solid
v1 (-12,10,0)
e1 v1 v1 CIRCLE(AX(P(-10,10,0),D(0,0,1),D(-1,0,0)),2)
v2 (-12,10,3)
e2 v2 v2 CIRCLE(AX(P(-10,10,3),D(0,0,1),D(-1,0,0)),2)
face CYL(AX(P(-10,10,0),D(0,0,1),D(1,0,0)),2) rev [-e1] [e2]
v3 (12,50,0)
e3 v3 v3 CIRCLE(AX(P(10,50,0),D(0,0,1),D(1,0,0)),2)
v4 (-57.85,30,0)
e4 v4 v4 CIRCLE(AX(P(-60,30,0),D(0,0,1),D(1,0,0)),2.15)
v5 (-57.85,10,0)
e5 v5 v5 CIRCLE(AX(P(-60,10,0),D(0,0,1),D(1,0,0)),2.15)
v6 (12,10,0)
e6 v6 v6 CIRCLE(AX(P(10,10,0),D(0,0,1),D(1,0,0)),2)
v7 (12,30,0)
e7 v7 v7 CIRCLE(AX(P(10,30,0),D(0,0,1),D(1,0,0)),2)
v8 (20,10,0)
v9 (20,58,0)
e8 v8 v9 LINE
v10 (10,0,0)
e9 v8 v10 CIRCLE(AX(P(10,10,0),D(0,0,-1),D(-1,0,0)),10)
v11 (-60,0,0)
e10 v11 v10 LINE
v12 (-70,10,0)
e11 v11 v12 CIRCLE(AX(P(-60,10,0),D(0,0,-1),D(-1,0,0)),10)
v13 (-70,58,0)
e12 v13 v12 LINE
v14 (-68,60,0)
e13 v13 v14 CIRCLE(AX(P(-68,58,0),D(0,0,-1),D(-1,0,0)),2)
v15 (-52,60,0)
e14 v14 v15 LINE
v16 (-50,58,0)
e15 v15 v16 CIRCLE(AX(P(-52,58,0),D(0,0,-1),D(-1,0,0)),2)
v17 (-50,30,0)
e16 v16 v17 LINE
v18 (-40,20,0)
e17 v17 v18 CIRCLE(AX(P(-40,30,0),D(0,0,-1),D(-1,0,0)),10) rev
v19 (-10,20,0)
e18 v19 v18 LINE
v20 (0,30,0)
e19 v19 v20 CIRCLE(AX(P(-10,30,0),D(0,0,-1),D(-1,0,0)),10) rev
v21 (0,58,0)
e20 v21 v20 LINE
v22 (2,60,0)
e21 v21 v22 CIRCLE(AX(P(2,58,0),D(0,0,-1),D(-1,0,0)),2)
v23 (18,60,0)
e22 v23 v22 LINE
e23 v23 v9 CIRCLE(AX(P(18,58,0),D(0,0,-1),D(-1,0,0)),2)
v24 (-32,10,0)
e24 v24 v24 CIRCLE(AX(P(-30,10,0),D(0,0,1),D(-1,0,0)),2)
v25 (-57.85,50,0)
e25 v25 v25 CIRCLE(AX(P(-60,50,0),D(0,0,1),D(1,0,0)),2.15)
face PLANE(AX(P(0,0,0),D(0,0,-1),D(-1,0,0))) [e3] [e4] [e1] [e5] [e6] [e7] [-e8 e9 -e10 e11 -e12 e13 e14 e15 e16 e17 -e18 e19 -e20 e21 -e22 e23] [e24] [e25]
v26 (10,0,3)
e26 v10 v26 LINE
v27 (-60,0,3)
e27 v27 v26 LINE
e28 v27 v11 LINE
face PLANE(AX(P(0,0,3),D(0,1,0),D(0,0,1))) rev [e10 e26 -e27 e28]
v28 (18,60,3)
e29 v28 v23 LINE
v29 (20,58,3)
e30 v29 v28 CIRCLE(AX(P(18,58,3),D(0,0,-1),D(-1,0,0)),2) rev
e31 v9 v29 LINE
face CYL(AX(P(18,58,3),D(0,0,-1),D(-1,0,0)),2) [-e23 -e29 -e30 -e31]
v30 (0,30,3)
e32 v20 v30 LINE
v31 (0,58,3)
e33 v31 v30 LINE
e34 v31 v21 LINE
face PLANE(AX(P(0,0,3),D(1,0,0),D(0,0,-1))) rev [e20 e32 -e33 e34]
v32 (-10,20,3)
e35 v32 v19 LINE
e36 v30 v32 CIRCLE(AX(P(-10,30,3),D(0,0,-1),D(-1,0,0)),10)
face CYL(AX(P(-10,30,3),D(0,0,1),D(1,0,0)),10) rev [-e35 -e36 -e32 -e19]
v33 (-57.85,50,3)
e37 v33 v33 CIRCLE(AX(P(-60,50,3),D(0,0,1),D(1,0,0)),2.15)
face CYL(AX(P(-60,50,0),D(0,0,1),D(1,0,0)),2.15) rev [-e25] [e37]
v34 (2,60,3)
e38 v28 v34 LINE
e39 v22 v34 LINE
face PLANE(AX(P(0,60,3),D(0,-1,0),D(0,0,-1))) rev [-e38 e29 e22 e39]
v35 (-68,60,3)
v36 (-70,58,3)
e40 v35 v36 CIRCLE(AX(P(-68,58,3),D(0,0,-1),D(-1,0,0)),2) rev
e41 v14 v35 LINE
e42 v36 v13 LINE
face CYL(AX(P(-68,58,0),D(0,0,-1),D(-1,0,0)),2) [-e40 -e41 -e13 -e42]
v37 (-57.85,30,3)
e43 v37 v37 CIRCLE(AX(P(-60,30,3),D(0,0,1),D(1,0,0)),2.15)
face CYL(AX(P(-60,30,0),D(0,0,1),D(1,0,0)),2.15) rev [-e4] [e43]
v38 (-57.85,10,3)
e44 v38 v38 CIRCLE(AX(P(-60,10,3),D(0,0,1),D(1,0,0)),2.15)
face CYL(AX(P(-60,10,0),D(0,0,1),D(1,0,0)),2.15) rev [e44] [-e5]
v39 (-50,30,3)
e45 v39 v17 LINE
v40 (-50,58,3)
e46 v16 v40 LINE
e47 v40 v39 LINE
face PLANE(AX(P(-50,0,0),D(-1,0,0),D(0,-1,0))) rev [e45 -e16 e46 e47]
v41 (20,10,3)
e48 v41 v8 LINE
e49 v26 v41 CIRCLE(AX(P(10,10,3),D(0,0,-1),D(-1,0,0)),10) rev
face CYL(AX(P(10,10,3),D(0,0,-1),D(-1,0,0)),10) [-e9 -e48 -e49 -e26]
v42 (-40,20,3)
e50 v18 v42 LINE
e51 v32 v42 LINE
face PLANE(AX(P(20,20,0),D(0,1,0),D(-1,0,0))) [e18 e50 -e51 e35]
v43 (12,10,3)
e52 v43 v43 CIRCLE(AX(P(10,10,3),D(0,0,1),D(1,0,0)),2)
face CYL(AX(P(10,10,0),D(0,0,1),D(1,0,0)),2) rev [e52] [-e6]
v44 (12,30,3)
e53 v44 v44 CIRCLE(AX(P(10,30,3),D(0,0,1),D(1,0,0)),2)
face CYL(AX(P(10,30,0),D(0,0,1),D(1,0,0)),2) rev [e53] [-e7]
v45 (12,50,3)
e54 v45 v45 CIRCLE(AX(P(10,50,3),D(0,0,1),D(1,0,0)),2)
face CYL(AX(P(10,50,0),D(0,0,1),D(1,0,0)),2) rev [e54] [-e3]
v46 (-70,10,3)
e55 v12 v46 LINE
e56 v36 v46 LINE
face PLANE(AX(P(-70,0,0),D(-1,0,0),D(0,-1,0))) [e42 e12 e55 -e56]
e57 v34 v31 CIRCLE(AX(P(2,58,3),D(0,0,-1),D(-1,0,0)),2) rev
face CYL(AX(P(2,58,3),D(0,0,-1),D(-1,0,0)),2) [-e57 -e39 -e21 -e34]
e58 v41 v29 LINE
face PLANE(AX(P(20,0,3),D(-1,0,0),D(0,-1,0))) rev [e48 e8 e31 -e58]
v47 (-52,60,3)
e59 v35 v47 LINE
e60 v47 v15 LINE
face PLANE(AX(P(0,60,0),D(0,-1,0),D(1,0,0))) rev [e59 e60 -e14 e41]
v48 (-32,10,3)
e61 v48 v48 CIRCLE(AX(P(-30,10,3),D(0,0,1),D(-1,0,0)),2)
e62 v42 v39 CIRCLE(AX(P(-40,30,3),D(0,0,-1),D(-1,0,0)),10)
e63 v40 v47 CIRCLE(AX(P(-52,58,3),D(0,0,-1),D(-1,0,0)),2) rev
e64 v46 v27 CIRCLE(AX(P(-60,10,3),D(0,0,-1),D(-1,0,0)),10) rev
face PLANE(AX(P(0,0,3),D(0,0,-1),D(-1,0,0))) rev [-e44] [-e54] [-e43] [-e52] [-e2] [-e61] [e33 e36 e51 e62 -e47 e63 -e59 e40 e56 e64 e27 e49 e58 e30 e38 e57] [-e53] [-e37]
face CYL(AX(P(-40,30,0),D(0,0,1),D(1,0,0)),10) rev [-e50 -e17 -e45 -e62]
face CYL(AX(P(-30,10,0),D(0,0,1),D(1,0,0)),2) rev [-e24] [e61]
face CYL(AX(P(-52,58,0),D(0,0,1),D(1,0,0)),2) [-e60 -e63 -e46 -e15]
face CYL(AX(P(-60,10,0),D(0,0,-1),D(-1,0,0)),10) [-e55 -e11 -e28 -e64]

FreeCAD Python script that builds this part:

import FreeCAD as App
import Part
import Sketcher

V = App.Vector
Q = App.Units.Quantity


def edges_at(feature, points):
    """Names of the edges that pass closest to the given points."""
    edges = feature.Shape.Edges
    near = lambda p: min(range(len(edges)), key=lambda i: edges[i].distToShape(Part.Vertex(*p))[0])
    return sorted({f"Edge{near(p) + 1}" for p in points})

doc = App.newDocument("Part")
body = doc.addObject("PartDesign::Body", "Body")

sketch1 = doc.addObject("Sketcher::SketchObject", "Sketch")
body.addObject(sketch1)
sketch1.AttachmentSupport = (doc.XY_Plane, [""])
sketch1.MapMode = "FlatFace"
sketch1.addGeometry([
    Part.LineSegment(V(0, 60, 0), V(0, 0, 0)),
    Part.LineSegment(V(0, 0, 0), V(20, 0, 0)),
    Part.LineSegment(V(20, 0, 0), V(20, 60, 0)),
    Part.LineSegment(V(20, 60, 0), V(0, 60, 0)),
], False)
sketch1.addConstraint([
    Sketcher.Constraint("Coincident", 0, 2, 1, 1),
    Sketcher.Constraint("Coincident", 1, 2, 2, 1),
    Sketcher.Constraint("Coincident", 2, 2, 3, 1),
    Sketcher.Constraint("Coincident", 3, 2, 0, 1),
    Sketcher.Constraint("Vertical", 0),
    Sketcher.Constraint("Horizontal", 1),
    Sketcher.Constraint("Vertical", 2),
    Sketcher.Constraint("Horizontal", 3),
    Sketcher.Constraint("Coincident", 0, 2, -1, 1),
    Sketcher.Constraint("DistanceX", 1, 1, 1, 2, Q("20 mm")),
    Sketcher.Constraint("DistanceY", 0, 2, 0, 1, Q("60 mm")),
])
pad1 = doc.addObject("PartDesign::Pad", "Pad")
body.addObject(pad1)
pad1.Profile = sketch1
pad1.Length = 3

sketch2 = doc.addObject("Sketcher::SketchObject", "Sketch001")
body.addObject(sketch2)
sketch2.AttachmentSupport = (doc.XY_Plane, [""])
sketch2.MapMode = "FlatFace"
sketch2.AttachmentOffset = App.Placement(V(0, 0, 3), App.Rotation())
sketch2.addGeometry([
    Part.LineSegment(V(-40, 20, 0), V(-40, 0, 0)),
    Part.LineSegment(V(-40, 0, 0), V(20, 0, 0)),
    Part.LineSegment(V(20, 0, 0), V(20, 20, 0)),
    Part.LineSegment(V(20, 20, 0), V(-40, 20, 0)),
], False)
sketch2.addConstraint([
    Sketcher.Constraint("Coincident", 0, 2, 1, 1),
    Sketcher.Constraint("Coincident", 1, 2, 2, 1),
    Sketcher.Constraint("Coincident", 2, 2, 3, 1),
    Sketcher.Constraint("Coincident", 3, 2, 0, 1),
    Sketcher.Constraint("Vertical", 0),
    Sketcher.Constraint("Horizontal", 1),
    Sketcher.Constraint("Vertical", 2),
    Sketcher.Constraint("Horizontal", 3),
    Sketcher.Constraint("PointOnObject", 0, 2, -1),
    Sketcher.Constraint("DistanceX", 1, 1, 1, 2, Q("60 mm")),
    Sketcher.Constraint("DistanceY", 0, 2, 0, 1, Q("20 mm")),
    Sketcher.Constraint("DistanceX", 0, 2, -1, 1, Q("40 mm")),
])
pad2 = doc.addObject("PartDesign::Pad", "Pad001")
body.addObject(pad2)
pad2.Profile = sketch2
pad2.Length = 3
pad2.Reversed = True

sketch3 = doc.addObject("Sketcher::SketchObject", "Sketch002")
body.addObject(sketch3)
sketch3.AttachmentSupport = (doc.XY_Plane, [""])
sketch3.MapMode = "FlatFace"
sketch3.AttachmentOffset = App.Placement(V(0, 0, 3), App.Rotation())
sketch3.addGeometry([
    Part.Circle(V(10, 10, 0), V(0, 0, 1), 2),
    Part.Circle(V(10, 30, 0), V(0, 0, 1), 2),
    Part.Circle(V(10, 50, 0), V(0, 0, 1), 2),
    Part.Circle(V(-10, 10, 0), V(0, 0, 1), 2),
    Part.Circle(V(-30, 10, 0), V(0, 0, 1), 2),
], False)
sketch3.addConstraint([
    Sketcher.Constraint("Equal", 0, 1),
    Sketcher.Constraint("Equal", 1, 2),
    Sketcher.Constraint("Equal", 2, 3),
    Sketcher.Constraint("Equal", 3, 4),
    Sketcher.Constraint("Symmetric", 0, 3, 3, 3, -2),
    Sketcher.Constraint("Horizontal", 3, 3, 4, 3),
    Sketcher.Constraint("Vertical", 0, 3, 1, 3),
    Sketcher.Constraint("Vertical", 1, 3, 2, 3),
    Sketcher.Constraint("Diameter", 0, Q("4 mm")),
    Sketcher.Constraint("DistanceX", -1, 1, 0, 3, Q("10 mm")),
    Sketcher.Constraint("DistanceY", -1, 1, 0, 3, Q("10 mm")),
    Sketcher.Constraint("DistanceY", -1, 1, 1, 3, Q("30 mm")),
    Sketcher.Constraint("DistanceY", -1, 1, 2, 3, Q("50 mm")),
    Sketcher.Constraint("DistanceX", 4, 3, -1, 1, Q("30 mm")),
])
pocket1 = doc.addObject("PartDesign::Pocket", "Pocket")
body.addObject(pocket1)
pocket1.Profile = sketch3
pocket1.Length = 3
doc.recompute()

fillet = doc.addObject("PartDesign::Fillet", "Fillet")
body.addObject(fillet)
fillet.Base = (pocket1, edges_at(pocket1, [(0, 20, 1.5), (20, 0, 1.5)]))
fillet.Radius = 10

sketch4 = doc.addObject("Sketcher::SketchObject", "Sketch003")
body.addObject(sketch4)
sketch4.AttachmentSupport = (doc.XY_Plane, [""])
sketch4.MapMode = "FlatFace"
sketch4.AttachmentOffset = App.Placement(V(0, 0, 3), App.Rotation())
sketch4.addGeometry([
    Part.LineSegment(V(-70, 60, 0), V(-70, 0, 0)),
    Part.LineSegment(V(-70, 0, 0), V(-40, 0, 0)),
    Part.LineSegment(V(-40, 0, 0), V(-40, 20, 0)),
    Part.LineSegment(V(-40, 20, 0), V(-50, 20, 0)),
    Part.LineSegment(V(-50, 20, 0), V(-50, 60, 0)),
    Part.LineSegment(V(-50, 60, 0), V(-70, 60, 0)),
], False)
sketch4.addConstraint([
    Sketcher.Constraint("Coincident", 0, 2, 1, 1),
    Sketcher.Constraint("Coincident", 1, 2, 2, 1),
    Sketcher.Constraint("Coincident", 2, 2, 3, 1),
    Sketcher.Constraint("Coincident", 3, 2, 4, 1),
    Sketcher.Constraint("Coincident", 4, 2, 5, 1),
    Sketcher.Constraint("Coincident", 5, 2, 0, 1),
    Sketcher.Constraint("Vertical", 0),
    Sketcher.Constraint("Horizontal", 1),
    Sketcher.Constraint("Vertical", 2),
    Sketcher.Constraint("Horizontal", 3),
    Sketcher.Constraint("Vertical", 4),
    Sketcher.Constraint("Horizontal", 5),
    Sketcher.Constraint("PointOnObject", 0, 2, -1),
    Sketcher.Constraint("Equal", 5, 2),
    Sketcher.Constraint("DistanceX", 1, 1, 1, 2, Q("30 mm")),
    Sketcher.Constraint("DistanceX", 3, 2, 3, 1, Q("10 mm")),
    Sketcher.Constraint("DistanceY", 0, 2, 0, 1, Q("60 mm")),
    Sketcher.Constraint("DistanceX", 0, 2, -1, 1, Q("70 mm")),
])
pad3 = doc.addObject("PartDesign::Pad", "Pad002")
body.addObject(pad3)
pad3.Profile = sketch4
pad3.Length = 3
pad3.Reversed = True

sketch5 = doc.addObject("Sketcher::SketchObject", "Sketch004")
body.addObject(sketch5)
sketch5.AttachmentSupport = (doc.XY_Plane, [""])
sketch5.MapMode = "FlatFace"
sketch5.AttachmentOffset = App.Placement(V(0, 0, 3), App.Rotation())
sketch5.addGeometry([
    Part.Circle(V(-60, 10, 0), V(0, 0, 1), 2.1),
    Part.Circle(V(-60, 30, 0), V(0, 0, 1), 2.1),
    Part.Circle(V(-60, 50, 0), V(0, 0, 1), 2.1),
], False)
sketch5.addConstraint([
    Sketcher.Constraint("Equal", 0, 1),
    Sketcher.Constraint("Equal", 1, 2),
    Sketcher.Constraint("Vertical", 0, 3, 1, 3),
    Sketcher.Constraint("Vertical", 1, 3, 2, 3),
    Sketcher.Constraint("Diameter", 0, Q("4.3 mm")),
    Sketcher.Constraint("DistanceX", 0, 3, -1, 1, Q("60 mm")),
    Sketcher.Constraint("DistanceY", -1, 1, 0, 3, Q("10 mm")),
    Sketcher.Constraint("DistanceY", -1, 1, 1, 3, Q("30 mm")),
    Sketcher.Constraint("DistanceY", -1, 1, 2, 3, Q("50 mm")),
])
pocket2 = doc.addObject("PartDesign::Pocket", "Pocket001")
body.addObject(pocket2)
pocket2.Profile = sketch5
pocket2.Type = "ThroughAll"
doc.recompute()

fillet2 = doc.addObject("PartDesign::Fillet", "Fillet001")
body.addObject(fillet2)
fillet2.Base = (pocket2, edges_at(pocket2, [(-50, 20, 1.5), (-70, 0, 1.5)]))
fillet2.Radius = 10
doc.recompute()

fillet3 = doc.addObject("PartDesign::Fillet", "Fillet002")
body.addObject(fillet3)
fillet3.Base = (fillet2, edges_at(fillet2, [
    (-50, 60, 1.5),
    (-70, 60, 1.5),
    (0, 60, 1.5),
    (20, 60, 1.5),
]))
fillet3.Radius = 2

doc.recompute()
